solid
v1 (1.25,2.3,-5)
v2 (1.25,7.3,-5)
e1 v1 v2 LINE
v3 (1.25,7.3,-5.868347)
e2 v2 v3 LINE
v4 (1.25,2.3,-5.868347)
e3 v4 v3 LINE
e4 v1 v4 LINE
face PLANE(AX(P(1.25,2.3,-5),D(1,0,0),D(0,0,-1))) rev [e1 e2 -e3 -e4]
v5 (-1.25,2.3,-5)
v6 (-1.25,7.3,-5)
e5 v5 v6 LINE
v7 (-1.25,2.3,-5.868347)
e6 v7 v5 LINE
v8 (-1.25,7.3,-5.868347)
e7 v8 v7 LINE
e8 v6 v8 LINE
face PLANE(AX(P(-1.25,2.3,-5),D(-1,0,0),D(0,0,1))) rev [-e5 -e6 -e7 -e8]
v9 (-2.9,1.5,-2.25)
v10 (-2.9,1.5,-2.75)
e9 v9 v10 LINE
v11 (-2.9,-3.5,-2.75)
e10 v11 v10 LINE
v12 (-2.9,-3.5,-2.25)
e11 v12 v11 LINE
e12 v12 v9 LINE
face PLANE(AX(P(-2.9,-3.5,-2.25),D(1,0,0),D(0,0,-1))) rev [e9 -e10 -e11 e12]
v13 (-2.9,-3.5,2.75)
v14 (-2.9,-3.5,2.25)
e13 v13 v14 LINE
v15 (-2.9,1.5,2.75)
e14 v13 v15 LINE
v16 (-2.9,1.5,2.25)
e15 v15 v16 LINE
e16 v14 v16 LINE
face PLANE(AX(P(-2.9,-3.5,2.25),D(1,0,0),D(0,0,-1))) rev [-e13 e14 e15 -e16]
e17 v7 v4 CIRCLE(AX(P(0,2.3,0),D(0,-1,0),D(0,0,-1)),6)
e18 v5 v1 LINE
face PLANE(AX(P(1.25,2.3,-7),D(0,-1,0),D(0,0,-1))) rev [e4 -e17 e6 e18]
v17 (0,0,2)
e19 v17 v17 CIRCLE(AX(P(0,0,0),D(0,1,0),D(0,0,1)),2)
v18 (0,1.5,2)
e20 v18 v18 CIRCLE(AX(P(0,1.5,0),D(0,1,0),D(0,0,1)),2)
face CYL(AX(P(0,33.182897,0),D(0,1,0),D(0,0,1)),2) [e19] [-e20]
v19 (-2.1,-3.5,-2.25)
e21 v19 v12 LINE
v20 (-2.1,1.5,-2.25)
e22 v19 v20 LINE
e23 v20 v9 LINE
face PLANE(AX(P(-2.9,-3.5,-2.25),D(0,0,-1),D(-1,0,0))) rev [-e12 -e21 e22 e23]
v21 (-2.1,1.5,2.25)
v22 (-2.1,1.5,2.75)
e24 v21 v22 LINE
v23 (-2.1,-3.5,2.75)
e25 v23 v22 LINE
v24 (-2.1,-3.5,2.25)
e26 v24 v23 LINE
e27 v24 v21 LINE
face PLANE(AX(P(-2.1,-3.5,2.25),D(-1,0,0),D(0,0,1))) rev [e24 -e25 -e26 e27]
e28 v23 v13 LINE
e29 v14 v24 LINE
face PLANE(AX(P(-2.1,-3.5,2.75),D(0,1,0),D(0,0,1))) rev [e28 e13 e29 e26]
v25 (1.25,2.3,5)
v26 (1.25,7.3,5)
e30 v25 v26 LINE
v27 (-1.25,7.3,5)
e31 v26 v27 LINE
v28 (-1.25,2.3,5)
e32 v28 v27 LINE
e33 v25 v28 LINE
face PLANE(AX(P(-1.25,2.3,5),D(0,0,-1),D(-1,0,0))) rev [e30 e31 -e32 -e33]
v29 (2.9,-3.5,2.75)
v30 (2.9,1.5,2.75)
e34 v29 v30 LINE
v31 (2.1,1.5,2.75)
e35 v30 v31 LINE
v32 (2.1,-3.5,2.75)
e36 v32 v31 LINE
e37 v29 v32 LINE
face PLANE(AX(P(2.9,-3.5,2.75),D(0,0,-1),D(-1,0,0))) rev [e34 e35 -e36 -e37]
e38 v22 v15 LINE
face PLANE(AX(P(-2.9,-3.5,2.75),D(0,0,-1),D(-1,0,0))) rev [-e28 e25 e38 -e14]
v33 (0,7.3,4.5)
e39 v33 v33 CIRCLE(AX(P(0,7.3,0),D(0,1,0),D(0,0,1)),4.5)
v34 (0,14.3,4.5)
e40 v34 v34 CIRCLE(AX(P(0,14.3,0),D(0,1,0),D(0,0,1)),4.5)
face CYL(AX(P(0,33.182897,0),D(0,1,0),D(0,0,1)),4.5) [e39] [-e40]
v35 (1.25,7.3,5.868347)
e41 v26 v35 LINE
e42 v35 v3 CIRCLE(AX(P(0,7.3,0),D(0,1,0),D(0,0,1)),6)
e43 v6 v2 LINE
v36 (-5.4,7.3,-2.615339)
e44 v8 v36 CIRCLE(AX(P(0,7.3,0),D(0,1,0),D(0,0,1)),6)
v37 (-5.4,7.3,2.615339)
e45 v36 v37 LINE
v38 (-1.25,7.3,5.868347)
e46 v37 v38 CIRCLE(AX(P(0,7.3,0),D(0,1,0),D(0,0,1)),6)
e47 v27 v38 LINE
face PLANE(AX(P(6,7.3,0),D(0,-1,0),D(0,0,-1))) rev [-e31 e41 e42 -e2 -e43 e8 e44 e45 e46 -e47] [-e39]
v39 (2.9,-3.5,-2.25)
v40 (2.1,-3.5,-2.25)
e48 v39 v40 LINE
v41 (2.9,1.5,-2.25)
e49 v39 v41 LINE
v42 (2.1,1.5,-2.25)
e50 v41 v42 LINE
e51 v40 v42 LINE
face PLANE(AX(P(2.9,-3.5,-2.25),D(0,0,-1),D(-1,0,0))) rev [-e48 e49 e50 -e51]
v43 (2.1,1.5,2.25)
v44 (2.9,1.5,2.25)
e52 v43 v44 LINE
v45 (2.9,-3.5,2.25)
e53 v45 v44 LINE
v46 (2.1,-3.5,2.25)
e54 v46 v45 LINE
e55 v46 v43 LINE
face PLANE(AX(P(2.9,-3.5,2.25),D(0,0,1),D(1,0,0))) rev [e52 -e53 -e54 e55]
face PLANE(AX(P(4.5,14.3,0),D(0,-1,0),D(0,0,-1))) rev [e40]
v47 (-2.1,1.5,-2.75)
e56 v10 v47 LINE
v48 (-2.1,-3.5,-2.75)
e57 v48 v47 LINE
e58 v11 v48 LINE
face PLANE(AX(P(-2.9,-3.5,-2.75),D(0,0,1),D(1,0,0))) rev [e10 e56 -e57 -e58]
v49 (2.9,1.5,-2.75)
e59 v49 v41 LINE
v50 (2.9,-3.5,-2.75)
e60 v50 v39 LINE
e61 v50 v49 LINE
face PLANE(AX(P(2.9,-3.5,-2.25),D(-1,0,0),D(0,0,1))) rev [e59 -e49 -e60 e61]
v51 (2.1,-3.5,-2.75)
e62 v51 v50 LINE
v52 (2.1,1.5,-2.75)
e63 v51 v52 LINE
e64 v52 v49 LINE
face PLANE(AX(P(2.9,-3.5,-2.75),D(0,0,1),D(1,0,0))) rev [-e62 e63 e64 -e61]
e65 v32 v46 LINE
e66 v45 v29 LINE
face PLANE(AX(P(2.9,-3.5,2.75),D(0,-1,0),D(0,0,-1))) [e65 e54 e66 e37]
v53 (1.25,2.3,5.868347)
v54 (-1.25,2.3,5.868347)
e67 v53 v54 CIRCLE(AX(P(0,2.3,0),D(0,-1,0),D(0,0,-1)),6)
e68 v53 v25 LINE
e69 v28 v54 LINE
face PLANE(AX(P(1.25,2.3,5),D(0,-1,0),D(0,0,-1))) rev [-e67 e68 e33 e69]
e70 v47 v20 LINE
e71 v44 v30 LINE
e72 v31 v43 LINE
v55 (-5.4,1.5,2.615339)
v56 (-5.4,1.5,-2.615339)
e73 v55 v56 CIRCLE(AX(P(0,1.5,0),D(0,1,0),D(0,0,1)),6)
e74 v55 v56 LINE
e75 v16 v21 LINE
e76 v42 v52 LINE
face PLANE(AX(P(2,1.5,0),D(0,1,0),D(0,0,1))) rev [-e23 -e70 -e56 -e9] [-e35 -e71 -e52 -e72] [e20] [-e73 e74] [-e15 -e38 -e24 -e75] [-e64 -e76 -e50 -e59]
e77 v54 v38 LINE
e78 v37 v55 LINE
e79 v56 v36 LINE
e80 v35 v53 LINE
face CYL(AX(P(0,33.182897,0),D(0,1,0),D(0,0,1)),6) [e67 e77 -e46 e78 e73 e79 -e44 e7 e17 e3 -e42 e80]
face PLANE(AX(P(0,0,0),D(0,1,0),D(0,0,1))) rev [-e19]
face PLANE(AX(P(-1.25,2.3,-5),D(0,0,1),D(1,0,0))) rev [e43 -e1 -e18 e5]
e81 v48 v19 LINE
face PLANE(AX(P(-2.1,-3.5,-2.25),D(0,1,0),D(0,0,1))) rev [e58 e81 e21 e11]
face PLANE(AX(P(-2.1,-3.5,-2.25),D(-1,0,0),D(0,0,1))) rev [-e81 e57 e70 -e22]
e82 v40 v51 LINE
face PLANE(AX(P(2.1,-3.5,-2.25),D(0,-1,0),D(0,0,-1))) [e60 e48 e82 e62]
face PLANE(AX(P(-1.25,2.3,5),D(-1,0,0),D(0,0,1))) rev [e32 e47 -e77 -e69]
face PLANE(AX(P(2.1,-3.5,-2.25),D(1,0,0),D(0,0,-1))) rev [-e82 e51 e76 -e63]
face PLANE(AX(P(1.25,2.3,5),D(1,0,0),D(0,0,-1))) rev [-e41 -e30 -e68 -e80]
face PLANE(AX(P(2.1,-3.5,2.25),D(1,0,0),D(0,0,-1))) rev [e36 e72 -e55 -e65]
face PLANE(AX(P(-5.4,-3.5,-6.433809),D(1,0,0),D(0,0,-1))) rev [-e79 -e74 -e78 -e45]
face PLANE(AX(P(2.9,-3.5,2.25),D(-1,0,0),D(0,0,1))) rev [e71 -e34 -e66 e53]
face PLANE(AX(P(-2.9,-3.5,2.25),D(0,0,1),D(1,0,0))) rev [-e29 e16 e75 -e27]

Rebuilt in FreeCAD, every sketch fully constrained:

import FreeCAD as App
import Part
import Sketcher
from FreeCAD import Vector

doc = App.newDocument("Part")
body = doc.addObject("PartDesign::Body", "Body")

sketch1 = body.newObject("Sketcher::SketchObject", "Sketch")
sketch1.AttachmentSupport = (doc.getObject("XY_Plane"), [""])
sketch1.MapMode = "FlatFace"
sketch1.addGeometry(Part.LineSegment(Vector(0, 0, 0), Vector(2, 0, 0)), False)
sketch1.addGeometry(Part.LineSegment(Vector(2, 0, 0), Vector(2, 1.5, 0)), False)
sketch1.addGeometry(Part.LineSegment(Vector(2, 1.5, 0), Vector(6, 1.5, 0)), False)
sketch1.addGeometry(Part.LineSegment(Vector(6, 1.5, 0), Vector(6, 7.3, 0)), False)
sketch1.addGeometry(Part.LineSegment(Vector(6, 7.3, 0), Vector(4.5, 7.3, 0)), False)
sketch1.addGeometry(Part.LineSegment(Vector(4.5, 7.3, 0), Vector(4.5, 14.3, 0)), False)
sketch1.addGeometry(Part.LineSegment(Vector(4.5, 14.3, 0), Vector(0, 14.3, 0)), False)
sketch1.addGeometry(Part.LineSegment(Vector(0, 14.3, 0), Vector(0, 0, 0)), False)
sketch1.addConstraint(Sketcher.Constraint("Coincident", 0, 2, 1, 1))
sketch1.addConstraint(Sketcher.Constraint("Coincident", 1, 2, 2, 1))
sketch1.addConstraint(Sketcher.Constraint("Coincident", 2, 2, 3, 1))
sketch1.addConstraint(Sketcher.Constraint("Coincident", 3, 2, 4, 1))
sketch1.addConstraint(Sketcher.Constraint("Coincident", 4, 2, 5, 1))
sketch1.addConstraint(Sketcher.Constraint("Coincident", 5, 2, 6, 1))
sketch1.addConstraint(Sketcher.Constraint("Coincident", 6, 2, 7, 1))
sketch1.addConstraint(Sketcher.Constraint("Coincident", 7, 2, 0, 1))
sketch1.addConstraint(Sketcher.Constraint("Horizontal", 0))
sketch1.addConstraint(Sketcher.Constraint("Vertical", 1))
sketch1.addConstraint(Sketcher.Constraint("Horizontal", 2))
sketch1.addConstraint(Sketcher.Constraint("Vertical", 3))
sketch1.addConstraint(Sketcher.Constraint("Horizontal", 4))
sketch1.addConstraint(Sketcher.Constraint("Vertical", 5))
sketch1.addConstraint(Sketcher.Constraint("Horizontal", 6))
sketch1.addConstraint(Sketcher.Constraint("Vertical", 7))
sketch1.addConstraint(Sketcher.Constraint("Coincident", 7, 2, -1, 1))
sketch1.addConstraint(Sketcher.Constraint("Equal", 4, 1))
sketch1.addConstraint(Sketcher.Constraint("DistanceX", 0, 1, 0, 2, 2.0))
sketch1.addConstraint(Sketcher.Constraint("DistanceX", 2, 1, 2, 2, 4.0))
sketch1.addConstraint(Sketcher.Constraint("DistanceY", 5, 1, 5, 2, 7.0))
sketch1.addConstraint(Sketcher.Constraint("DistanceX", 4, 2, 4, 1, 1.5))
sketch1.addConstraint(Sketcher.Constraint("DistanceY", 3, 1, 3, 2, 5.8))
revolution = body.newObject("PartDesign::Revolution", "Revolution")
revolution.Profile = sketch1
revolution.ReferenceAxis = (sketch1, ["V_Axis"])
revolution.Angle = 360

sketch2 = body.newObject("Sketcher::SketchObject", "Sketch001")
sketch2.AttachmentSupport = (doc.getObject("XZ_Plane"), [""])
sketch2.MapMode = "FlatFace"
sketch2.AttachmentOffset = App.Placement(Vector(0, 0, -1.5), App.Rotation())
sketch2.addGeometry(Part.LineSegment(Vector(-2.9, 2.75, 0), Vector(-2.9, 2.25, 0)), False)
sketch2.addGeometry(Part.LineSegment(Vector(-2.9, 2.25, 0), Vector(-2.1, 2.25, 0)), False)
sketch2.addGeometry(Part.LineSegment(Vector(-2.1, 2.25, 0), Vector(-2.1, 2.75, 0)), False)
sketch2.addGeometry(Part.LineSegment(Vector(-2.1, 2.75, 0), Vector(-2.9, 2.75, 0)), False)
sketch2.addGeometry(Part.LineSegment(Vector(2.1, 2.75, 0), Vector(2.1, 2.25, 0)), False)
sketch2.addGeometry(Part.LineSegment(Vector(2.1, 2.25, 0), Vector(2.9, 2.25, 0)), False)
sketch2.addGeometry(Part.LineSegment(Vector(2.9, 2.25, 0), Vector(2.9, 2.75, 0)), False)
sketch2.addGeometry(Part.LineSegment(Vector(2.9, 2.75, 0), Vector(2.1, 2.75, 0)), False)
sketch2.addGeometry(Part.LineSegment(Vector(2.1, -2.25, 0), Vector(2.1, -2.75, 0)), False)
sketch2.addGeometry(Part.LineSegment(Vector(2.1, -2.75, 0), Vector(2.9, -2.75, 0)), False)
sketch2.addGeometry(Part.LineSegment(Vector(2.9, -2.75, 0), Vector(2.9, -2.25, 0)), False)
sketch2.addGeometry(Part.LineSegment(Vector(2.9, -2.25, 0), Vector(2.1, -2.25, 0)), False)
sketch2.addGeometry(Part.LineSegment(Vector(-2.9, -2.25, 0), Vector(-2.9, -2.75, 0)), False)
sketch2.addGeometry(Part.LineSegment(Vector(-2.9, -2.75, 0), Vector(-2.1, -2.75, 0)), False)
sketch2.addGeometry(Part.LineSegment(Vector(-2.1, -2.75, 0), Vector(-2.1, -2.25, 0)), False)
sketch2.addGeometry(Part.LineSegment(Vector(-2.1, -2.25, 0), Vector(-2.9, -2.25, 0)), False)
sketch2.addConstraint(Sketcher.Constraint("Coincident", 0, 2, 1, 1))
sketch2.addConstraint(Sketcher.Constraint("Coincident", 1, 2, 2, 1))
sketch2.addConstraint(Sketcher.Constraint("Coincident", 2, 2, 3, 1))
sketch2.addConstraint(Sketcher.Constraint("Coincident", 3, 2, 0, 1))
sketch2.addConstraint(Sketcher.Constraint("Coincident", 4, 2, 5, 1))
sketch2.addConstraint(Sketcher.Constraint("Coincident", 5, 2, 6, 1))
sketch2.addConstraint(Sketcher.Constraint("Coincident", 6, 2, 7, 1))
sketch2.addConstraint(Sketcher.Constraint("Coincident", 7, 2, 4, 1))
sketch2.addConstraint(Sketcher.Constraint("Coincident", 8, 2, 9, 1))
sketch2.addConstraint(Sketcher.Constraint("Coincident", 9, 2, 10, 1))
sketch2.addConstraint(Sketcher.Constraint("Coincident", 10, 2, 11, 1))
sketch2.addConstraint(Sketcher.Constraint("Coincident", 11, 2, 8, 1))
sketch2.addConstraint(Sketcher.Constraint("Coincident", 12, 2, 13, 1))
sketch2.addConstraint(Sketcher.Constraint("Coincident", 13, 2, 14, 1))
sketch2.addConstraint(Sketcher.Constraint("Coincident", 14, 2, 15, 1))
sketch2.addConstraint(Sketcher.Constraint("Coincident", 15, 2, 12, 1))
sketch2.addConstraint(Sketcher.Constraint("Vertical", 0))
sketch2.addConstraint(Sketcher.Constraint("Horizontal", 1))
sketch2.addConstraint(Sketcher.Constraint("Vertical", 2))
sketch2.addConstraint(Sketcher.Constraint("Horizontal", 3))
sketch2.addConstraint(Sketcher.Constraint("Vertical", 4))
sketch2.addConstraint(Sketcher.Constraint("Horizontal", 5))
sketch2.addConstraint(Sketcher.Constraint("Vertical", 6))
sketch2.addConstraint(Sketcher.Constraint("Horizontal", 7))
sketch2.addConstraint(Sketcher.Constraint("Vertical", 8))
sketch2.addConstraint(Sketcher.Constraint("Horizontal", 9))
sketch2.addConstraint(Sketcher.Constraint("Vertical", 10))
sketch2.addConstraint(Sketcher.Constraint("Horizontal", 11))
sketch2.addConstraint(Sketcher.Constraint("Vertical", 12))
sketch2.addConstraint(Sketcher.Constraint("Horizontal", 13))
sketch2.addConstraint(Sketcher.Constraint("Vertical", 14))
sketch2.addConstraint(Sketcher.Constraint("Horizontal", 15))
sketch2.addConstraint(Sketcher.Constraint("Symmetric", 2, 2, 8, 2, -1, 1))
sketch2.addConstraint(Sketcher.Constraint("Symmetric", 0, 2, 10, 2, -1, 1))
sketch2.addConstraint(Sketcher.Constraint("Symmetric", 6, 2, 12, 2, -1, 1))
sketch2.addConstraint(Sketcher.Constraint("Symmetric", 4, 2, 14, 2, -1, 1))
sketch2.addConstraint(Sketcher.Constraint("Symmetric", 1, 2, 4, 2, -2))
sketch2.addConstraint(Sketcher.Constraint("Symmetric", 3, 2, 6, 2, -2))
sketch2.addConstraint(Sketcher.Constraint("DistanceX", 1, 1, 1, 2, 0.8))
sketch2.addConstraint(Sketcher.Constraint("DistanceY", 0, 2, 0, 1, 0.5))
sketch2.addConstraint(Sketcher.Constraint("DistanceX", 0, 2, 4, 2, 5.0))
sketch2.addConstraint(Sketcher.Constraint("DistanceY", 8, 2, 4, 2, 5.0))
pad1 = body.newObject("PartDesign::Pad", "Pad")
pad1.Profile = sketch2
pad1.Length = 5

sketch3 = body.newObject("Sketcher::SketchObject", "Sketch002")
sketch3.AttachmentSupport = (doc.getObject("XZ_Plane"), [""])
sketch3.MapMode = "FlatFace"
sketch3.AttachmentOffset = App.Placement(Vector(0, 0, -14.3), App.Rotation())
sketch3.addGeometry(Part.LineSegment(Vector(-10, -6.433809, 0), Vector(-10, 7.309841, 0)), False)
sketch3.addGeometry(Part.LineSegment(Vector(-10, 7.309841, 0), Vector(-5.4, 7.309841, 0)), False)
sketch3.addGeometry(Part.LineSegment(Vector(-5.4, 7.309841, 0), Vector(-5.4, -6.433809, 0)), False)
sketch3.addGeometry(Part.LineSegment(Vector(-5.4, -6.433809, 0), Vector(-10, -6.433809, 0)), False)
sketch3.addConstraint(Sketcher.Constraint("Coincident", 0, 2, 1, 1))
sketch3.addConstraint(Sketcher.Constraint("Coincident", 1, 2, 2, 1))
sketch3.addConstraint(Sketcher.Constraint("Coincident", 2, 2, 3, 1))
sketch3.addConstraint(Sketcher.Constraint("Coincident", 3, 2, 0, 1))
sketch3.addConstraint(Sketcher.Constraint("Vertical", 0))
sketch3.addConstraint(Sketcher.Constraint("Horizontal", 1))
sketch3.addConstraint(Sketcher.Constraint("Vertical", 2))
sketch3.addConstraint(Sketcher.Constraint("Horizontal", 3))
sketch3.addConstraint(Sketcher.Constraint("DistanceX", 1, 1, 1, 2, 4.6))
sketch3.addConstraint(Sketcher.Constraint("DistanceX", 0, 2, -1, 1, 10.0))
sketch3.addConstraint(Sketcher.Constraint("DistanceY", 0, 1, 0, 2, 13.743651))
sketch3.addConstraint(Sketcher.Constraint("DistanceY", -1, 1, 0, 2, 7.309841))
pocket1 = body.newObject("PartDesign::Pocket", "Pocket")
pocket1.Profile = sketch3
pocket1.Type = "ThroughAll"
pocket1.Reversed = True

sketch4 = body.newObject("Sketcher::SketchObject", "Sketch003")
sketch4.AttachmentSupport = (doc.getObject("XZ_Plane"), [""])
sketch4.MapMode = "FlatFace"
sketch4.AttachmentOffset = App.Placement(Vector(0, 0, -7.3), App.Rotation())
sketch4.addGeometry(Part.LineSegment(Vector(-1.25, -7, 0), Vector(-1.25, -5, 0)), False)
sketch4.addGeometry(Part.LineSegment(Vector(-1.25, -5, 0), Vector(1.25, -5, 0)), False)
sketch4.addGeometry(Part.LineSegment(Vector(1.25, -5, 0), Vector(1.25, -7, 0)), False)
sketch4.addGeometry(Part.LineSegment(Vector(1.25, -7, 0), Vector(-1.25, -7, 0)), False)
sketch4.addGeometry(Part.LineSegment(Vector(-1.25, 5, 0), Vector(-1.25, 7, 0)), False)
sketch4.addGeometry(Part.LineSegment(Vector(-1.25, 7, 0), Vector(1.25, 7, 0)), False)
sketch4.addGeometry(Part.LineSegment(Vector(1.25, 7, 0), Vector(1.25, 5, 0)), False)
sketch4.addGeometry(Part.LineSegment(Vector(1.25, 5, 0), Vector(-1.25, 5, 0)), False)
sketch4.addConstraint(Sketcher.Constraint("Coincident", 0, 2, 1, 1))
sketch4.addConstraint(Sketcher.Constraint("Coincident", 1, 2, 2, 1))
sketch4.addConstraint(Sketcher.Constraint("Coincident", 2, 2, 3, 1))
sketch4.addConstraint(Sketcher.Constraint("Coincident", 3, 2, 0, 1))
sketch4.addConstraint(Sketcher.Constraint("Coincident", 4, 2, 5, 1))
sketch4.addConstraint(Sketcher.Constraint("Coincident", 5, 2, 6, 1))
sketch4.addConstraint(Sketcher.Constraint("Coincident", 6, 2, 7, 1))
sketch4.addConstraint(Sketcher.Constraint("Coincident", 7, 2, 4, 1))
sketch4.addConstraint(Sketcher.Constraint("Vertical", 0))
sketch4.addConstraint(Sketcher.Constraint("Horizontal", 1))
sketch4.addConstraint(Sketcher.Constraint("Vertical", 2))
sketch4.addConstraint(Sketcher.Constraint("Horizontal", 3))
sketch4.addConstraint(Sketcher.Constraint("Vertical", 4))
sketch4.addConstraint(Sketcher.Constraint("Horizontal", 5))
sketch4.addConstraint(Sketcher.Constraint("Vertical", 6))
sketch4.addConstraint(Sketcher.Constraint("Horizontal", 7))
sketch4.addConstraint(Sketcher.Constraint("Symmetric", 2, 2, 4, 2, -1, 1))
sketch4.addConstraint(Sketcher.Constraint("Symmetric", 0, 2, 6, 2, -1, 1))
sketch4.addConstraint(Sketcher.Constraint("Vertical", 3, 2, 4, 2))
sketch4.addConstraint(Sketcher.Constraint("DistanceY", 0, 1, 0, 2, 2.0))
sketch4.addConstraint(Sketcher.Constraint("DistanceX", 1, 1, 1, 2, 2.5))
sketch4.addConstraint(Sketcher.Constraint("DistanceY", 0, 2, -1, 1, 5.0))
pocket2 = body.newObject("PartDesign::Pocket", "Pocket001")
pocket2.Profile = sketch4
pocket2.Length = 5
pocket2.Reversed = True

doc.recompute()
